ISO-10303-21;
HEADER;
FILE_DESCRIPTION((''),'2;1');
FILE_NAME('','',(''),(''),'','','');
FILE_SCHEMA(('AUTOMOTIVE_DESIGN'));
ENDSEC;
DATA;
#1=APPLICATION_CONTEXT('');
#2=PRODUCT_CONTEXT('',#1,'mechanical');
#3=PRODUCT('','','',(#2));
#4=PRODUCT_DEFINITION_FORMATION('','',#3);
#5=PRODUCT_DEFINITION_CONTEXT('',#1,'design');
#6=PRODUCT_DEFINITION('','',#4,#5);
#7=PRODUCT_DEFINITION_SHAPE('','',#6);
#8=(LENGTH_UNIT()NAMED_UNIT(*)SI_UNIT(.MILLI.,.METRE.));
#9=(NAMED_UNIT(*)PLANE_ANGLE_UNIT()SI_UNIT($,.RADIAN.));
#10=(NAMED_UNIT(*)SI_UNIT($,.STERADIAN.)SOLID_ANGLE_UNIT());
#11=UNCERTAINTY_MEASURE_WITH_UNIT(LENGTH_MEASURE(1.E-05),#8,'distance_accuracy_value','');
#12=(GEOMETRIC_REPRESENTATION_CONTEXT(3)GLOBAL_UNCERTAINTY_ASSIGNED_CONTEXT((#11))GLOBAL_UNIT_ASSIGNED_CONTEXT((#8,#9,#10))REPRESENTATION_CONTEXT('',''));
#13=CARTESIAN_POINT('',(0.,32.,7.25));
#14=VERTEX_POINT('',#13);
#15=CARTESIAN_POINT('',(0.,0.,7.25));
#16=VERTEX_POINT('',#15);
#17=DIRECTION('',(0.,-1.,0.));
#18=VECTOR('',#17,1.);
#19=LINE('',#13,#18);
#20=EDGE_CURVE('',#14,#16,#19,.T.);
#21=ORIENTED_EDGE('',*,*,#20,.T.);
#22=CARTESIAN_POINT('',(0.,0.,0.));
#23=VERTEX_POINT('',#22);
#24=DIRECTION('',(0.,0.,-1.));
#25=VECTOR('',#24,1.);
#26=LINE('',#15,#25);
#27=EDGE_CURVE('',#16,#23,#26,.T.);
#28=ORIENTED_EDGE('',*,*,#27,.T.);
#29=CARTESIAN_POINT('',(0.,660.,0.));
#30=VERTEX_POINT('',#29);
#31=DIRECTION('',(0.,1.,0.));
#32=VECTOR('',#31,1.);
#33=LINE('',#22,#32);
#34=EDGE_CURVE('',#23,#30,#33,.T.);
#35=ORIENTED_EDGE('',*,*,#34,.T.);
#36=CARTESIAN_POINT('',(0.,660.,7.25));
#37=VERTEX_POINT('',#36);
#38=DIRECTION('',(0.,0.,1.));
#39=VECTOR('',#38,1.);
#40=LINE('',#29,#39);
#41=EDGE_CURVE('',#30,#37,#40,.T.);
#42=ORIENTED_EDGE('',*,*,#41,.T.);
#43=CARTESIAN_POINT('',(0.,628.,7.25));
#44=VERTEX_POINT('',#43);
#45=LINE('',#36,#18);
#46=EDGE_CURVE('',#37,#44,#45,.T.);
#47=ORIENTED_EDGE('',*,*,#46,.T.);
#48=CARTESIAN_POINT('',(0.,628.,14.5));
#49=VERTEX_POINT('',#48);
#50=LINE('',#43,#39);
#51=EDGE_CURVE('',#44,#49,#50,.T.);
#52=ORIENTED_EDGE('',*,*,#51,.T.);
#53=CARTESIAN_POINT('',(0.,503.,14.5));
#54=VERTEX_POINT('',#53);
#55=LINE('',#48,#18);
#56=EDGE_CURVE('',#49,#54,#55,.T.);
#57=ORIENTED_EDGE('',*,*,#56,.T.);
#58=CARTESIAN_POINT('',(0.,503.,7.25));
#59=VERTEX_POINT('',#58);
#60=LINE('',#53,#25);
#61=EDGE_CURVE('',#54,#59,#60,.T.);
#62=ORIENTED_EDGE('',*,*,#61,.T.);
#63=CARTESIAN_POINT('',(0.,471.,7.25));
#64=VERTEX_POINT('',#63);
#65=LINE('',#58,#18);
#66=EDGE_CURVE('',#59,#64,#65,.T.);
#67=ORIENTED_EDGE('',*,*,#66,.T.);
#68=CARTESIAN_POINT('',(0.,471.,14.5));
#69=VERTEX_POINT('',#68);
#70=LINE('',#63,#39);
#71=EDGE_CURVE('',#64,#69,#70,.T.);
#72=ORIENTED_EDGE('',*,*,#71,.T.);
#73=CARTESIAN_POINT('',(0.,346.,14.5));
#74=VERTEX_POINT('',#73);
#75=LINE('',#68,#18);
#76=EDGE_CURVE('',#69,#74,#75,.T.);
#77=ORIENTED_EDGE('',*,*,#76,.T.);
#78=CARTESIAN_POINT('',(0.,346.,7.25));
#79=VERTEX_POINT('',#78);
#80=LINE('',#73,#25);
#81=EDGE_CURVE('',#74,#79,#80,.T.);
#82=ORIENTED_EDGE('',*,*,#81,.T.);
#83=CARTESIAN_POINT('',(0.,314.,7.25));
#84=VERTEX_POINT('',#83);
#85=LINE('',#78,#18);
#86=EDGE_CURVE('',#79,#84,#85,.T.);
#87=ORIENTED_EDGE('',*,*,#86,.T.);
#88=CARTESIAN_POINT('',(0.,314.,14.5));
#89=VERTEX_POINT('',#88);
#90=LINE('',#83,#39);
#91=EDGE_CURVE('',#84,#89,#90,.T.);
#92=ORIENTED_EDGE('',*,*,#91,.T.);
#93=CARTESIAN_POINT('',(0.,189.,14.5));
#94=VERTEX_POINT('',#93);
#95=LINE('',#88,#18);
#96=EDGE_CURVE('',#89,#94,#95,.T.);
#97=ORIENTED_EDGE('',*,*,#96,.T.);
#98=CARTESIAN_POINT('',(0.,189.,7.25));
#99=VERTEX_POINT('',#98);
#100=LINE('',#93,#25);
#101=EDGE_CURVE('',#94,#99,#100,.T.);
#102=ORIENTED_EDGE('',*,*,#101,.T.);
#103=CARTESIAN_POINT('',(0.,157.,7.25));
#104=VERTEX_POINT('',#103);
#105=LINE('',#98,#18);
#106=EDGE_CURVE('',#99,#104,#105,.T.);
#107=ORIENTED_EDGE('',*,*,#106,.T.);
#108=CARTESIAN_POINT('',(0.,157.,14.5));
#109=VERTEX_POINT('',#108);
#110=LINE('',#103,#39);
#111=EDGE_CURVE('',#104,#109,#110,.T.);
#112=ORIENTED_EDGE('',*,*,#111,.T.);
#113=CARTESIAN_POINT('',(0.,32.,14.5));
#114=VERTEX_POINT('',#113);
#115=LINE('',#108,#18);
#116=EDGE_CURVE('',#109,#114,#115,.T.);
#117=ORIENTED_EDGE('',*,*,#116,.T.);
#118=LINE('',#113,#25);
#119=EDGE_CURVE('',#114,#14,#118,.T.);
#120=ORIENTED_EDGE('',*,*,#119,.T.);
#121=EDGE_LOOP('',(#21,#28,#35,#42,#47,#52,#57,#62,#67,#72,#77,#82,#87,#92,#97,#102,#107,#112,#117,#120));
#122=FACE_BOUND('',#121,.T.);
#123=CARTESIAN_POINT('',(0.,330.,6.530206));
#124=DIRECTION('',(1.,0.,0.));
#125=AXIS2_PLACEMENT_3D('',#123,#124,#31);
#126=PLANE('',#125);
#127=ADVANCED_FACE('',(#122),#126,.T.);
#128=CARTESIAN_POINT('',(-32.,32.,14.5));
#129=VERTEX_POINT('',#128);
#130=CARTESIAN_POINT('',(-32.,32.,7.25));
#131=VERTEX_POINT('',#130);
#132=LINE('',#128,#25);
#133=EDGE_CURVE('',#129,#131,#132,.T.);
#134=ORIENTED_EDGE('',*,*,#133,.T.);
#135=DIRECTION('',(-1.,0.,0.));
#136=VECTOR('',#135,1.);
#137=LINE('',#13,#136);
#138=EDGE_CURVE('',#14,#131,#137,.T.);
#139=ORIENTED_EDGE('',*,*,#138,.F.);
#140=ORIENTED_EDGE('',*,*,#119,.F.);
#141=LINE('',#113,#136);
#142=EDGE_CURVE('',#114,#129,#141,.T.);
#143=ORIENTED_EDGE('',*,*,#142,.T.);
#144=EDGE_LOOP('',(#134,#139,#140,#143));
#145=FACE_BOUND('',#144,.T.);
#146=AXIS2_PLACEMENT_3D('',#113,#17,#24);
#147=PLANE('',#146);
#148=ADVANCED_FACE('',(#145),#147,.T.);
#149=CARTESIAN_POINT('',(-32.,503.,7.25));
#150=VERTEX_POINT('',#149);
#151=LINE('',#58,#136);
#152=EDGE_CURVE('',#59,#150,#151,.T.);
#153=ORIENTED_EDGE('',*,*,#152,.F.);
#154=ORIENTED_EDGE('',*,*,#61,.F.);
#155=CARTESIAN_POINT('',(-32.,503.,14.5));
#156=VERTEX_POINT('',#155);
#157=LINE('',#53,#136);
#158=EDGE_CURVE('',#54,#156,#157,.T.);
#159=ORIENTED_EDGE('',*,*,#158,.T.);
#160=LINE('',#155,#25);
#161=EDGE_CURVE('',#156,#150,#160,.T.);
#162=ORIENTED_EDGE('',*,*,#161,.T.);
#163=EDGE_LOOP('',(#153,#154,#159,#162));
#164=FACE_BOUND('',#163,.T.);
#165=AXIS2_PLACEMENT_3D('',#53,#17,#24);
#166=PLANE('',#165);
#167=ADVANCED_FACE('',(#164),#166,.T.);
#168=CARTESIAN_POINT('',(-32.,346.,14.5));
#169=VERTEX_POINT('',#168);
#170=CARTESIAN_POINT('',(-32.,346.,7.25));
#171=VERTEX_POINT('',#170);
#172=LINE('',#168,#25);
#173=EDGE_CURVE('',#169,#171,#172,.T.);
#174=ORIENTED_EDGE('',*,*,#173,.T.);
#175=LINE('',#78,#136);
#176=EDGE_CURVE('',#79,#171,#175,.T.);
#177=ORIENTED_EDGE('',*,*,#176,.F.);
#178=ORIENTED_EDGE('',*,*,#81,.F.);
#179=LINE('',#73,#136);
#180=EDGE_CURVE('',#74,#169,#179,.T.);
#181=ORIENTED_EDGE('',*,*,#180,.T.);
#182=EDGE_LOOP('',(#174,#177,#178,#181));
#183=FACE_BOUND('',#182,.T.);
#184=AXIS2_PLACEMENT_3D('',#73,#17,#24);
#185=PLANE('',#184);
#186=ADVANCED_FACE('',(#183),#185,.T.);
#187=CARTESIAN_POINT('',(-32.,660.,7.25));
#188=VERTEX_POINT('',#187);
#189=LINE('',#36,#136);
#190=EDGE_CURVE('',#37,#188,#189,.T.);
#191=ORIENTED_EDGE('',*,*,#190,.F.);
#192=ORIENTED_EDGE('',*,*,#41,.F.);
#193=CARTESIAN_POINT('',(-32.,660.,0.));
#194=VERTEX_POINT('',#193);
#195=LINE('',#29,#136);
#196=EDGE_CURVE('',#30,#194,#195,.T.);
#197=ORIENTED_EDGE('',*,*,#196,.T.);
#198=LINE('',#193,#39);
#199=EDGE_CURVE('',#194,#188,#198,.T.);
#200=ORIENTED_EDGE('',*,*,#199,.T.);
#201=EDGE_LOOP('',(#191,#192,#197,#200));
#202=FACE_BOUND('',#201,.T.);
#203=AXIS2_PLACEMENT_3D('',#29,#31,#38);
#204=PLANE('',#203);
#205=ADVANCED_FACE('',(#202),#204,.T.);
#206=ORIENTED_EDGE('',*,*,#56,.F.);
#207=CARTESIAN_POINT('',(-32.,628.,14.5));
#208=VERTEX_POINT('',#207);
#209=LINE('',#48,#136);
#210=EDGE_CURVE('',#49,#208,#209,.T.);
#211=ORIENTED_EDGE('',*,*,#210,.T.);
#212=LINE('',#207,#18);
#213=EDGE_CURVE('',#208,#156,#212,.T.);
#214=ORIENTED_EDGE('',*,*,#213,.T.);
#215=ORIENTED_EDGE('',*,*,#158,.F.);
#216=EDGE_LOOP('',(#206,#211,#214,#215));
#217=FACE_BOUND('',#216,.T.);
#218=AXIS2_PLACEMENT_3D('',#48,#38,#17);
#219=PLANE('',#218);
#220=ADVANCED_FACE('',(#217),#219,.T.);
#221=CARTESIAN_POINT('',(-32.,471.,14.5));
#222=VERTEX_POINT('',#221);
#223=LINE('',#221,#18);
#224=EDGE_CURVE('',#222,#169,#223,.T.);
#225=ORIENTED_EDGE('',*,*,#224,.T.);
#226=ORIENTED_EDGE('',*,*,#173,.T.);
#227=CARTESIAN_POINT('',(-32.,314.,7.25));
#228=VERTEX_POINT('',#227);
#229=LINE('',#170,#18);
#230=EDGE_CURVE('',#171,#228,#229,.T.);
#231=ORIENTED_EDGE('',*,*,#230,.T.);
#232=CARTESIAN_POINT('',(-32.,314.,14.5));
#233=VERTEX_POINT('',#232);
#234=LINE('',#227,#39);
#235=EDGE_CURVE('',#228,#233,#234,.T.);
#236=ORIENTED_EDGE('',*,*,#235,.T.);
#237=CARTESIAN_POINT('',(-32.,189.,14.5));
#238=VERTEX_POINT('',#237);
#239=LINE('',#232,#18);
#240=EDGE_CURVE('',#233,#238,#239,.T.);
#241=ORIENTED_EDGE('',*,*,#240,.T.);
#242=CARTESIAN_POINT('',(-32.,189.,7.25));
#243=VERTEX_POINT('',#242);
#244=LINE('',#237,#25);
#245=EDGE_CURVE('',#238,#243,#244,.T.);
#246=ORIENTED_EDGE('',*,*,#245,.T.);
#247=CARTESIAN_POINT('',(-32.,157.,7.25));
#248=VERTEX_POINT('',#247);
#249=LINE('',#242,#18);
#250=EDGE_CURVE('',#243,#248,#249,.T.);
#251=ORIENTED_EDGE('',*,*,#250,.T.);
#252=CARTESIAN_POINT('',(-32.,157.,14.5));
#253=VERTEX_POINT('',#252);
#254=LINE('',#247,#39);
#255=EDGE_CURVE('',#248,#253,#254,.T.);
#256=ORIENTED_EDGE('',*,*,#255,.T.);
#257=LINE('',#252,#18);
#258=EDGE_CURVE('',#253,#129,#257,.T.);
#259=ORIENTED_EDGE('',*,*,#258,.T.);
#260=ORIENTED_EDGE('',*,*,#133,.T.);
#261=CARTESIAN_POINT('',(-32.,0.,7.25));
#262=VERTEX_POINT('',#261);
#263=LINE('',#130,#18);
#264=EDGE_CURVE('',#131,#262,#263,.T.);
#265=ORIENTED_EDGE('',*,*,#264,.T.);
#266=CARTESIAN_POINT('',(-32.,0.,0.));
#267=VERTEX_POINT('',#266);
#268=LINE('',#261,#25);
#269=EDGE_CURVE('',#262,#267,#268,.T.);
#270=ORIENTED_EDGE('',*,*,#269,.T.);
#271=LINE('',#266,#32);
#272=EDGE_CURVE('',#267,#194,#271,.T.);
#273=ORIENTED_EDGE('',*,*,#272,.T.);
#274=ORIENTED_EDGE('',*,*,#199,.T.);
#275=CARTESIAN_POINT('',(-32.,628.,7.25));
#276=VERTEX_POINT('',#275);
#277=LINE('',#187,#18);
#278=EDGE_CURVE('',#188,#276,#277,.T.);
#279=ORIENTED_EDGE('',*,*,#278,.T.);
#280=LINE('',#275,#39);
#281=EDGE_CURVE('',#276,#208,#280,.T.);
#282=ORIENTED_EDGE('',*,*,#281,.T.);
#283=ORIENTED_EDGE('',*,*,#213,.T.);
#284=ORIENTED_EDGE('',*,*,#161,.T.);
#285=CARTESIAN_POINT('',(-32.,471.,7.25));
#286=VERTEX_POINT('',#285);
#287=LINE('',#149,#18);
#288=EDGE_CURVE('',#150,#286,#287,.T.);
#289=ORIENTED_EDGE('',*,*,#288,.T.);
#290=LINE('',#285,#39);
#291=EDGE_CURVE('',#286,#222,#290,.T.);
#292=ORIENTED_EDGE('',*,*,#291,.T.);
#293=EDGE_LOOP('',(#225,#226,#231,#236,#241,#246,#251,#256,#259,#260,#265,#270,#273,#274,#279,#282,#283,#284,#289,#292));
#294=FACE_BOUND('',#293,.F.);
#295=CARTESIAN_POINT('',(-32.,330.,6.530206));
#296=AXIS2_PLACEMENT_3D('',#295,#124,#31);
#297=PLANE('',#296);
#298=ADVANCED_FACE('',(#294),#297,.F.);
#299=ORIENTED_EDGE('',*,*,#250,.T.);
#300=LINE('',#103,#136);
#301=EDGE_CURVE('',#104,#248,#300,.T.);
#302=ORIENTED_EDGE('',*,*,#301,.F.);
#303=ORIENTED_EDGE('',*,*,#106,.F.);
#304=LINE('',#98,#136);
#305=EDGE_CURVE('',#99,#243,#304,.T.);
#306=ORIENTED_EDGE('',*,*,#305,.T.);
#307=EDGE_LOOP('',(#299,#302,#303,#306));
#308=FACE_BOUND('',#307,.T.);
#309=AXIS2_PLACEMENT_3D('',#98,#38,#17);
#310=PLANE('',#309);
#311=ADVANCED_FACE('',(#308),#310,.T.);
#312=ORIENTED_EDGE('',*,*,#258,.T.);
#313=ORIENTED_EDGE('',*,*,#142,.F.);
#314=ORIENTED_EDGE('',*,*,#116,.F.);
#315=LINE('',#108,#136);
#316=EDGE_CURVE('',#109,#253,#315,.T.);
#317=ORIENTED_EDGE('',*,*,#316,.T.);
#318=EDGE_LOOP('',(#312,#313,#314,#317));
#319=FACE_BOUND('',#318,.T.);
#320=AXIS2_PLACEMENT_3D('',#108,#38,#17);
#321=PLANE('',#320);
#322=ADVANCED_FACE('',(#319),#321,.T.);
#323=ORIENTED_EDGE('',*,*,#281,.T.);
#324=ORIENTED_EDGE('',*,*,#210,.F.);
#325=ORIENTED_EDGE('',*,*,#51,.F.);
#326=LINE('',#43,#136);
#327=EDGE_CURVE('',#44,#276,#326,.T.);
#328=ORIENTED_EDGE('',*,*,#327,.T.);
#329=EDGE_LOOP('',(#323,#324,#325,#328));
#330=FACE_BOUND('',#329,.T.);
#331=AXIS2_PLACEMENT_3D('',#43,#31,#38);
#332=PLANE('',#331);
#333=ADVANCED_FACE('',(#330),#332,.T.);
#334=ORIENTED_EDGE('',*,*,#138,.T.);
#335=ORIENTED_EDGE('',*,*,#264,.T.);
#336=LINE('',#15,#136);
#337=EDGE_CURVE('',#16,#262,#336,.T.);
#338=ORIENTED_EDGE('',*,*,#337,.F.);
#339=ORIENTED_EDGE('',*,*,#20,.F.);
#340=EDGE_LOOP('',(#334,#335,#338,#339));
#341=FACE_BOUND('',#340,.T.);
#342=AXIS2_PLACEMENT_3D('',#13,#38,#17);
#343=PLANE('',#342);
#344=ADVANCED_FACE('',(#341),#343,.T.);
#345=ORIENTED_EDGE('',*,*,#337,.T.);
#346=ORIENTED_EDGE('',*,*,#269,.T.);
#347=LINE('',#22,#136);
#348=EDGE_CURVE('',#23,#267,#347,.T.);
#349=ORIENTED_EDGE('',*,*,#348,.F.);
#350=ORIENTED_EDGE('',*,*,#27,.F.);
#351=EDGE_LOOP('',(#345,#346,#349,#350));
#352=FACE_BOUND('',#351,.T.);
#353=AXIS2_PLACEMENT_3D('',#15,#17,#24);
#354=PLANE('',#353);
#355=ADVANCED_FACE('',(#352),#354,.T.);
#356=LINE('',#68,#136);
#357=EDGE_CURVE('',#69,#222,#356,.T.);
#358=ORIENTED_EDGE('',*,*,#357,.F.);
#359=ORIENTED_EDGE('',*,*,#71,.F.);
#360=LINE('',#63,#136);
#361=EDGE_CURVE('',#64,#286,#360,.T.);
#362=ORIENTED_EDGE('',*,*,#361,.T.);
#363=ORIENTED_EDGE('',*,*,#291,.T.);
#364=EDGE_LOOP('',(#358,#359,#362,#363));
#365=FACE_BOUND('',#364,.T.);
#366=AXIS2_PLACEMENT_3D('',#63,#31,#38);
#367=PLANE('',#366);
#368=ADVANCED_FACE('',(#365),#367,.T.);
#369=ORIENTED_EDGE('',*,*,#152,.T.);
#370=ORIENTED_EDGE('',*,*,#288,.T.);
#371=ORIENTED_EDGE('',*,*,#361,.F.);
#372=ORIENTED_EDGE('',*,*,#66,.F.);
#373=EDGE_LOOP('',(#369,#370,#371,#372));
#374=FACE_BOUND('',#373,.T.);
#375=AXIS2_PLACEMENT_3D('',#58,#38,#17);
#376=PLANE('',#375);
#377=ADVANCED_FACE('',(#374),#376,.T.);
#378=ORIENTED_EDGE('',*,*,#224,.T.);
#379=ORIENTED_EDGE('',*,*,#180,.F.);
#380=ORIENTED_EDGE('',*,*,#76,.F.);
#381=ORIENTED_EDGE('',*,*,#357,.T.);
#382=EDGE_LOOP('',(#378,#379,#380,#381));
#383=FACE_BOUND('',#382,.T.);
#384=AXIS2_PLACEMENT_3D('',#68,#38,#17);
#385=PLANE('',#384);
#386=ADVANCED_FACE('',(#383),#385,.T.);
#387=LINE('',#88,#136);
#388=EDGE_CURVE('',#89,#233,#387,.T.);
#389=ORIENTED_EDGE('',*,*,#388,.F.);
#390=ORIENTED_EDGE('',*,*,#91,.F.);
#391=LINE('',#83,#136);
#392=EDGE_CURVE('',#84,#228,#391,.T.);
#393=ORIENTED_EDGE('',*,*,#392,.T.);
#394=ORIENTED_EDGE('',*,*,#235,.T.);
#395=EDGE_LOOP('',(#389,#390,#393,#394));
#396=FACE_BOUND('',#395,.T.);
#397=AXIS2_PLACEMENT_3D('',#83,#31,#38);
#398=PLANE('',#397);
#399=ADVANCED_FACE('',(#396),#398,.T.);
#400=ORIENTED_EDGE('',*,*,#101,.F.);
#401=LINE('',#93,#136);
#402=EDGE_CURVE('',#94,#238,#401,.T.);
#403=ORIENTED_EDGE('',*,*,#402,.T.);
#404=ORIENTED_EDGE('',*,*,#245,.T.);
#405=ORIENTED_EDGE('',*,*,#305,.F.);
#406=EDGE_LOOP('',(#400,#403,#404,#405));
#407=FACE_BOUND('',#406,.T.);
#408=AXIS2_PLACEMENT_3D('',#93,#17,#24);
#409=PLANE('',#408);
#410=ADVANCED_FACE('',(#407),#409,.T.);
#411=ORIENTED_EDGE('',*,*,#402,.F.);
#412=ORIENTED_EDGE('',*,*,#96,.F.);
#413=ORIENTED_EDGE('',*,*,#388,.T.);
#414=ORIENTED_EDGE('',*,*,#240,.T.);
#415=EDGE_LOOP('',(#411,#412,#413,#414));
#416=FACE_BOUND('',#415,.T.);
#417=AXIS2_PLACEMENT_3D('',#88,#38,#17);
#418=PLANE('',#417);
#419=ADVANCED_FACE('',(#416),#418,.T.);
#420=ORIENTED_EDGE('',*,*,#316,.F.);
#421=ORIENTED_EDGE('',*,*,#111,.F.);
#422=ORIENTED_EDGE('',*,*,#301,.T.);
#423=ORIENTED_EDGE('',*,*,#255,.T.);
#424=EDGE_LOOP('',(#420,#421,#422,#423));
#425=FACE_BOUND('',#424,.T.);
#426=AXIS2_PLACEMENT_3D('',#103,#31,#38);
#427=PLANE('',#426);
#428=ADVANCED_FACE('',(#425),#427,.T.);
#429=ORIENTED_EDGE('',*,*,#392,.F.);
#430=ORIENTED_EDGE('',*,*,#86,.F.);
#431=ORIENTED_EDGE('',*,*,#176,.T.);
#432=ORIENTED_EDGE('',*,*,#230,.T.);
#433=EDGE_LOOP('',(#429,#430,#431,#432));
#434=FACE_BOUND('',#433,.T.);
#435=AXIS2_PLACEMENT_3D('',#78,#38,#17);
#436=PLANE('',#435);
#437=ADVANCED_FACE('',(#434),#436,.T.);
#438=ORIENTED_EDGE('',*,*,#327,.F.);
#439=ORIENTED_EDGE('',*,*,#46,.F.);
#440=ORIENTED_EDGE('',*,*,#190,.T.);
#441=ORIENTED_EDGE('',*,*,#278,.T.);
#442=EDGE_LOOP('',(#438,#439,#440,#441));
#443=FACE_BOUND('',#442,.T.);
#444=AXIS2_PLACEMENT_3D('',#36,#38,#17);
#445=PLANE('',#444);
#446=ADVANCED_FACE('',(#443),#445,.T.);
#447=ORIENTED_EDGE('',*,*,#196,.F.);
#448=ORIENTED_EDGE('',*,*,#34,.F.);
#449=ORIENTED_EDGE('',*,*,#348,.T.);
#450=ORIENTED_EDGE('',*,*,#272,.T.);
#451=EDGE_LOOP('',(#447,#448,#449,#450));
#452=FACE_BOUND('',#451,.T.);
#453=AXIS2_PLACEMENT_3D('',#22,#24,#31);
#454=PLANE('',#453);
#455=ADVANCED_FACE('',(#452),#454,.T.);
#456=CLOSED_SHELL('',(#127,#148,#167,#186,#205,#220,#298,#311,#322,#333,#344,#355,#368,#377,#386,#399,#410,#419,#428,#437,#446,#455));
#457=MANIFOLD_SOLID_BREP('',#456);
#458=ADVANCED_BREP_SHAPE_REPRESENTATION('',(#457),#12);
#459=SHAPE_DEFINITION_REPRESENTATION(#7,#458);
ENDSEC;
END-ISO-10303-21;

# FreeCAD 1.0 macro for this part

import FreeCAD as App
import Part
import Sketcher
from FreeCAD import Vector
Q = App.Units.Quantity

doc = App.newDocument("Part")
body = doc.addObject("PartDesign::Body", "Body")

sketch1 = body.newObject("Sketcher::SketchObject", "Sketch")
sketch1.AttachmentSupport = (doc.getObject("YZ_Plane"), [""])
sketch1.MapMode = "FlatFace"
sketch1.addGeometry(Part.LineSegment(Vector(0, 7, 0), Vector(0, 0, 0)), False)
sketch1.addGeometry(Part.LineSegment(Vector(0, 0, 0), Vector(660, 0, 0)), False)
sketch1.addGeometry(Part.LineSegment(Vector(660, 0, 0), Vector(660, 7, 0)), False)
sketch1.addGeometry(Part.LineSegment(Vector(660, 7, 0), Vector(628, 7, 0)), False)
sketch1.addGeometry(Part.LineSegment(Vector(628, 7, 0), Vector(628, 14, 0)), False)
sketch1.addGeometry(Part.LineSegment(Vector(628, 14, 0), Vector(503, 14, 0)), False)
sketch1.addGeometry(Part.LineSegment(Vector(503, 14, 0), Vector(503, 7, 0)), False)
sketch1.addGeometry(Part.LineSegment(Vector(503, 7, 0), Vector(471, 7, 0)), False)
sketch1.addGeometry(Part.LineSegment(Vector(471, 7, 0), Vector(471, 14, 0)), False)
sketch1.addGeometry(Part.LineSegment(Vector(471, 14, 0), Vector(346, 14, 0)), False)
sketch1.addGeometry(Part.LineSegment(Vector(346, 14, 0), Vector(346, 7, 0)), False)
sketch1.addGeometry(Part.LineSegment(Vector(346, 7, 0), Vector(314, 7, 0)), False)
sketch1.addGeometry(Part.LineSegment(Vector(314, 7, 0), Vector(314, 14, 0)), False)
sketch1.addGeometry(Part.LineSegment(Vector(314, 14, 0), Vector(189, 14, 0)), False)
sketch1.addGeometry(Part.LineSegment(Vector(189, 14, 0), Vector(189, 7, 0)), False)
sketch1.addGeometry(Part.LineSegment(Vector(189, 7, 0), Vector(157, 7, 0)), False)
sketch1.addGeometry(Part.LineSegment(Vector(157, 7, 0), Vector(157, 14, 0)), False)
sketch1.addGeometry(Part.LineSegment(Vector(157, 14, 0), Vector(32, 14, 0)), False)
sketch1.addGeometry(Part.LineSegment(Vector(32, 14, 0), Vector(32, 7, 0)), False)
sketch1.addGeometry(Part.LineSegment(Vector(32, 7, 0), Vector(0, 7, 0)), False)
sketch1.addConstraint(Sketcher.Constraint("Coincident", 0, 2, 1, 1))
sketch1.addConstraint(Sketcher.Constraint("Coincident", 1, 2, 2, 1))
sketch1.addConstraint(Sketcher.Constraint("Coincident", 2, 2, 3, 1))
sketch1.addConstraint(Sketcher.Constraint("Coincident", 3, 2, 4, 1))
sketch1.addConstraint(Sketcher.Constraint("Coincident", 4, 2, 5, 1))
sketch1.addConstraint(Sketcher.Constraint("Coincident", 5, 2, 6, 1))
sketch1.addConstraint(Sketcher.Constraint("Coincident", 6, 2, 7, 1))
sketch1.addConstraint(Sketcher.Constraint("Coincident", 7, 2, 8, 1))
sketch1.addConstraint(Sketcher.Constraint("Coincident", 8, 2, 9, 1))
sketch1.addConstraint(Sketcher.Constraint("Coincident", 9, 2, 10, 1))
sketch1.addConstraint(Sketcher.Constraint("Coincident", 10, 2, 11, 1))
sketch1.addConstraint(Sketcher.Constraint("Coincident", 11, 2, 12, 1))
sketch1.addConstraint(Sketcher.Constraint("Coincident", 12, 2, 13, 1))
sketch1.addConstraint(Sketcher.Constraint("Coincident", 13, 2, 14, 1))
sketch1.addConstraint(Sketcher.Constraint("Coincident", 14, 2, 15, 1))
sketch1.addConstraint(Sketcher.Constraint("Coincident", 15, 2, 16, 1))
sketch1.addConstraint(Sketcher.Constraint("Coincident", 16, 2, 17, 1))
sketch1.addConstraint(Sketcher.Constraint("Coincident", 17, 2, 18, 1))
sketch1.addConstraint(Sketcher.Constraint("Coincident", 18, 2, 19, 1))
sketch1.addConstraint(Sketcher.Constraint("Coincident", 19, 2, 0, 1))
sketch1.addConstraint(Sketcher.Constraint("Vertical", 0))
sketch1.addConstraint(Sketcher.Constraint("Horizontal", 1))
sketch1.addConstraint(Sketcher.Constraint("Vertical", 2))
sketch1.addConstraint(Sketcher.Constraint("Horizontal", 3))
sketch1.addConstraint(Sketcher.Constraint("Vertical", 4))
sketch1.addConstraint(Sketcher.Constraint("Horizontal", 5))
sketch1.addConstraint(Sketcher.Constraint("Vertical", 6))
sketch1.addConstraint(Sketcher.Constraint("Horizontal", 7))
sketch1.addConstraint(Sketcher.Constraint("Vertical", 8))
sketch1.addConstraint(Sketcher.Constraint("Horizontal", 9))
sketch1.addConstraint(Sketcher.Constraint("Vertical", 10))
sketch1.addConstraint(Sketcher.Constraint("Horizontal", 11))
sketch1.addConstraint(Sketcher.Constraint("Vertical", 12))
sketch1.addConstraint(Sketcher.Constraint("Horizontal", 13))
sketch1.addConstraint(Sketcher.Constraint("Vertical", 14))
sketch1.addConstraint(Sketcher.Constraint("Horizontal", 15))
sketch1.addConstraint(Sketcher.Constraint("Vertical", 16))
sketch1.addConstraint(Sketcher.Constraint("Horizontal", 17))
sketch1.addConstraint(Sketcher.Constraint("Vertical", 18))
sketch1.addConstraint(Sketcher.Constraint("Horizontal", 19))
sketch1.addConstraint(Sketcher.Constraint("Coincident", 0, 2, -1, 1))
sketch1.addConstraint(Sketcher.Constraint("Horizontal", 3, 2, 6, 2))
sketch1.addConstraint(Sketcher.Constraint("Horizontal", 5, 2, 8, 2))
sketch1.addConstraint(Sketcher.Constraint("Horizontal", 7, 2, 10, 2))
sketch1.addConstraint(Sketcher.Constraint("Horizontal", 9, 2, 12, 2))
sketch1.addConstraint(Sketcher.Constraint("Horizontal", 11, 2, 14, 2))
sketch1.addConstraint(Sketcher.Constraint("Horizontal", 13, 2, 16, 2))
sketch1.addConstraint(Sketcher.Constraint("Horizontal", 15, 2, 18, 2))
sketch1.addConstraint(Sketcher.Constraint("Equal", 3, 7))
sketch1.addConstraint(Sketcher.Constraint("Equal", 5, 9))
sketch1.addConstraint(Sketcher.Constraint("Equal", 7, 11))
sketch1.addConstraint(Sketcher.Constraint("Equal", 9, 13))
sketch1.addConstraint(Sketcher.Constraint("Equal", 11, 15))
sketch1.addConstraint(Sketcher.Constraint("Equal", 13, 17))
sketch1.addConstraint(Sketcher.Constraint("Equal", 15, 19))
sketch1.addConstraint(Sketcher.Constraint("Equal", 2, 4))
sketch1.addConstraint(Sketcher.Constraint("DistanceX", 1, 1, 1, 2, Q("660 mm")))
sketch1.addConstraint(Sketcher.Constraint("DistanceX", 3, 2, 3, 1, Q("32 mm")))
sketch1.addConstraint(Sketcher.Constraint("DistanceY", 0, 2, 0, 1, Q("7.25 mm")))
pad1 = body.newObject("PartDesign::Pad", "Pad")
pad1.Profile = sketch1
pad1.Length = 32
pad1.Reversed = True

doc.recompute()
